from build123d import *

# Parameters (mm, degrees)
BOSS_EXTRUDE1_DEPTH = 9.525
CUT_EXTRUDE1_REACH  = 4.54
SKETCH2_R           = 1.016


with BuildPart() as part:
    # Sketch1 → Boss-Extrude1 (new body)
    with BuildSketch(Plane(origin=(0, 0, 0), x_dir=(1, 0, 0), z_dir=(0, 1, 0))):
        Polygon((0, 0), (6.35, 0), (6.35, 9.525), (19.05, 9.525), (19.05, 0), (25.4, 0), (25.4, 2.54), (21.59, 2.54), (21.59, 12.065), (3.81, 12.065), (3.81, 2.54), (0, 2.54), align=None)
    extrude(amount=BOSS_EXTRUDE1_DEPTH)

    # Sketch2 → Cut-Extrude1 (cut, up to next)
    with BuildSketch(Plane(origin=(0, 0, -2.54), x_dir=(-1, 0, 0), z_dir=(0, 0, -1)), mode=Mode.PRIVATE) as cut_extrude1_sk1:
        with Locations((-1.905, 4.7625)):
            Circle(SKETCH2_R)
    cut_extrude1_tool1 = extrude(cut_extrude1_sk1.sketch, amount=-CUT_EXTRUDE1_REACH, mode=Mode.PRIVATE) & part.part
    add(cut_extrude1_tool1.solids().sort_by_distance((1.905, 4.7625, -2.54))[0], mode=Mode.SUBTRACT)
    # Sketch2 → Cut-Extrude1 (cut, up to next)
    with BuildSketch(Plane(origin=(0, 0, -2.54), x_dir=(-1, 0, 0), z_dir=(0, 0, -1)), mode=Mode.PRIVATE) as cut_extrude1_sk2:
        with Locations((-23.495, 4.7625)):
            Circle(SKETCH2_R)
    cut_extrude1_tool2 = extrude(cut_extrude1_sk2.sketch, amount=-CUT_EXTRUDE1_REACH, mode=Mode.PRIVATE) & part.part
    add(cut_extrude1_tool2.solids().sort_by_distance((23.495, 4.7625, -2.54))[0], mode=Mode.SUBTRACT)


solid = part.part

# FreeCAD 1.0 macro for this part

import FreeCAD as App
import Part
import Sketcher
from FreeCAD import Vector
Q = App.Units.Quantity


def add_polygon(sketch, points):
    """Adds a closed chain of lines whose ends are joined by coincident constraints."""
    first, n = sketch.GeometryCount, len(points)
    for a, b in zip(points, points[1:] + points[:1]):
        sketch.addGeometry(Part.LineSegment(App.Vector(*a, 0), App.Vector(*b, 0)), False)
    for i in range(n):
        sketch.addConstraint(Sketcher.Constraint("Coincident", first + i, 2, first + (i + 1) % n, 1))

doc = App.newDocument("Part")
body = doc.addObject("PartDesign::Body", "Body")

# Sketch on XZ plane
sketch1 = body.newObject("Sketcher::SketchObject", "Sketch")
sketch1.AttachmentSupport = (doc.getObject("XZ_Plane"), [""])
sketch1.MapMode = "FlatFace"
add_polygon(sketch1, [(0, 0), (6.3, 0), (6.3, -9.5), (19.1, -9.5), (19.1, 0), (25.4, 0), (25.4, -2.5), (21.6, -2.5), (21.6, -12.1), (3.8, -12.1), (3.8, -2.5), (0, -2.5)])  # lines 0-11
sketch1.addConstraint([
    Sketcher.Constraint("Horizontal", 0),
    Sketcher.Constraint("Vertical", 1),
    Sketcher.Constraint("Horizontal", 2),
    Sketcher.Constraint("Vertical", 3),
    Sketcher.Constraint("Horizontal", 4),
    Sketcher.Constraint("Vertical", 5),
    Sketcher.Constraint("Horizontal", 6),
    Sketcher.Constraint("Vertical", 7),
    Sketcher.Constraint("Horizontal", 8),
    Sketcher.Constraint("Vertical", 9),
    Sketcher.Constraint("Horizontal", 10),
    Sketcher.Constraint("Vertical", 11),
    Sketcher.Constraint("Coincident", 11, 2, -1, 1),
    Sketcher.Constraint("PointOnObject", 3, 2, -1),
    Sketcher.Constraint("Horizontal", 6, 2, 9, 2),
    Sketcher.Constraint("Equal", 0, 4),
    Sketcher.Constraint("Equal", 6, 10),
    Sketcher.Constraint("Equal", 3, 7),
    Sketcher.Constraint("DistanceX", 2, 1, 2, 2, Q("0.5 in")),
    Sketcher.Constraint("DistanceX", 8, 2, 8, 1, Q("0.7 in")),
    Sketcher.Constraint("DistanceY", 5, 2, 5, 1, Q("0.1 in")),
    Sketcher.Constraint("DistanceX", -1, 1, 4, 2, Q("1 in")),
    Sketcher.Constraint("DistanceY", 1, 2, 1, 1, Q("0.375 in")),
])
pad1 = body.newObject("PartDesign::Pad", "Pad")
pad1.Profile = sketch1
pad1.Length = Q("0.375 in")
pad1.Reversed = True

# Sketch on XY plane
sketch2 = body.newObject("Sketcher::SketchObject", "Sketch001")
sketch2.AttachmentSupport = (doc.getObject("XY_Plane"), [""])
sketch2.MapMode = "FlatFace"
sketch2.AttachmentOffset = App.Placement(Vector(0, 0, -0.1 * 25.4), App.Rotation())
sketch2.addGeometry(Part.Circle(Vector(1.9, 4.8, 0), Vector(0, 0, 1), 1), False)
sketch2.addConstraint([
    Sketcher.Constraint("Diameter", 0, Q("0.08 in")),
    Sketcher.Constraint("DistanceX", -1, 1, 0, 3, Q("0.075 in")),
    Sketcher.Constraint("DistanceY", -1, 1, 0, 3, Q("0.1875 in")),
])
pocket1 = body.newObject("PartDesign::Pocket", "Pocket")
pocket1.Profile = sketch2
pocket1.Type = "UpToFirst"
pocket1.Reversed = True

# Sketch on XY plane
sketch3 = body.newObject("Sketcher::SketchObject", "Sketch002")
sketch3.AttachmentSupport = (doc.getObject("XY_Plane"), [""])
sketch3.MapMode = "FlatFace"
sketch3.AttachmentOffset = App.Placement(Vector(0, 0, -0.1 * 25.4), App.Rotation())
sketch3.addGeometry(Part.Circle(Vector(23.5, 4.8, 0), Vector(0, 0, 1), 1), False)
sketch3.addConstraint([
    Sketcher.Constraint("Diameter", 0, Q("0.08 in")),
    Sketcher.Constraint("DistanceX", -1, 1, 0, 3, Q("0.925 in")),
    Sketcher.Constraint("DistanceY", -1, 1, 0, 3, Q("0.1875 in")),
])
pocket2 = body.newObject("PartDesign::Pocket", "Pocket001")
pocket2.Profile = sketch3
pocket2.Type = "UpToFirst"
pocket2.Reversed = True

doc.recompute()
